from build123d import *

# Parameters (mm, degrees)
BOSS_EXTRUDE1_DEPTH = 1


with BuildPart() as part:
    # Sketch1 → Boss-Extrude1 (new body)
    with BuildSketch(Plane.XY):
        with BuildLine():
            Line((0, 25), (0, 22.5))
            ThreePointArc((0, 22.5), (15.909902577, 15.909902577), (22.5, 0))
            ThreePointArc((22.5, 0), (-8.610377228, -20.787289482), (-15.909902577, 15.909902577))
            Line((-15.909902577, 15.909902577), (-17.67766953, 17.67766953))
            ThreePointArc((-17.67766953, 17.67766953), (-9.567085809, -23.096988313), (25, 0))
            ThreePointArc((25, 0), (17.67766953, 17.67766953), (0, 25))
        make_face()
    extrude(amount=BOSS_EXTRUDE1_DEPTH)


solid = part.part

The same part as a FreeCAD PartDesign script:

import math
import FreeCAD as App
import Part
import Sketcher
Q = App.Units.Quantity

doc = App.newDocument("Part")
body = doc.addObject("PartDesign::Body", "Body")

# Sketch on XY plane
sketch1 = doc.addObject("Sketcher::SketchObject", "Sketch")
body.addObject(sketch1)
sketch1.AttachmentSupport = (doc.XY_Plane, [""])
sketch1.MapMode = "FlatFace"
sketch1.addGeometry([
    Part.LineSegment(App.Vector(0, 25, 0), App.Vector(0, 22.5, 0)),  # 0
    Part.ArcOfCircle(Part.Circle(App.Vector(0, 0, 0), App.Vector(0, 0, 1), 22.5), math.radians(0), math.radians(90)),  # 1
    Part.ArcOfCircle(Part.Circle(App.Vector(0, 0, 0), App.Vector(0, 0, 1), 22.5), math.radians(135), math.radians(360)),  # 2
    Part.LineSegment(App.Vector(-15.909903, 15.909903, 0), App.Vector(-17.67767, 17.67767, 0)),  # 3
    Part.ArcOfCircle(Part.Circle(App.Vector(0, 0, 0), App.Vector(0, 0, 1), 25), math.radians(135), math.radians(360)),  # 4
    Part.ArcOfCircle(Part.Circle(App.Vector(0, 0, 0), App.Vector(0, 0, 1), 25), math.radians(0), math.radians(90)),  # 5
], False)
sketch1.addConstraint([
    Sketcher.Constraint("Coincident", 0, 2, 1, 2),
    Sketcher.Constraint("Tangent", 1, 1, 2, 2),
    Sketcher.Constraint("Coincident", 2, 1, 3, 1),
    Sketcher.Constraint("Coincident", 3, 2, 4, 1),
    Sketcher.Constraint("Tangent", 4, 2, 5, 1),
    Sketcher.Constraint("Coincident", 5, 2, 0, 1),
    Sketcher.Constraint("Vertical", 0),
    Sketcher.Constraint("Coincident", 1, 3, -1, 1),
    Sketcher.Constraint("Coincident", 4, 3, -1, 1),
    Sketcher.Constraint("Equal", 1, 2),
    Sketcher.Constraint("Equal", 4, 5),
    Sketcher.Constraint("PointOnObject", 0, 2, -2),
    Sketcher.Constraint("PointOnObject", 1, 1, -1),
    Sketcher.Constraint("PointOnObject", 4, 2, -1),
    Sketcher.Constraint("Radius", 4, Q("25 mm")),
    Sketcher.Constraint("Radius", 1, Q("22.5 mm")),
    Sketcher.Constraint("Angle", 3, Q("135 deg")),
    Sketcher.Constraint("DistanceX", 3, 2, -1, 1, Q("17.67767 mm")),
])
pad1 = doc.addObject("PartDesign::Pad", "Pad")
body.addObject(pad1)
pad1.Profile = sketch1
pad1.Length = 1

doc.recompute()
